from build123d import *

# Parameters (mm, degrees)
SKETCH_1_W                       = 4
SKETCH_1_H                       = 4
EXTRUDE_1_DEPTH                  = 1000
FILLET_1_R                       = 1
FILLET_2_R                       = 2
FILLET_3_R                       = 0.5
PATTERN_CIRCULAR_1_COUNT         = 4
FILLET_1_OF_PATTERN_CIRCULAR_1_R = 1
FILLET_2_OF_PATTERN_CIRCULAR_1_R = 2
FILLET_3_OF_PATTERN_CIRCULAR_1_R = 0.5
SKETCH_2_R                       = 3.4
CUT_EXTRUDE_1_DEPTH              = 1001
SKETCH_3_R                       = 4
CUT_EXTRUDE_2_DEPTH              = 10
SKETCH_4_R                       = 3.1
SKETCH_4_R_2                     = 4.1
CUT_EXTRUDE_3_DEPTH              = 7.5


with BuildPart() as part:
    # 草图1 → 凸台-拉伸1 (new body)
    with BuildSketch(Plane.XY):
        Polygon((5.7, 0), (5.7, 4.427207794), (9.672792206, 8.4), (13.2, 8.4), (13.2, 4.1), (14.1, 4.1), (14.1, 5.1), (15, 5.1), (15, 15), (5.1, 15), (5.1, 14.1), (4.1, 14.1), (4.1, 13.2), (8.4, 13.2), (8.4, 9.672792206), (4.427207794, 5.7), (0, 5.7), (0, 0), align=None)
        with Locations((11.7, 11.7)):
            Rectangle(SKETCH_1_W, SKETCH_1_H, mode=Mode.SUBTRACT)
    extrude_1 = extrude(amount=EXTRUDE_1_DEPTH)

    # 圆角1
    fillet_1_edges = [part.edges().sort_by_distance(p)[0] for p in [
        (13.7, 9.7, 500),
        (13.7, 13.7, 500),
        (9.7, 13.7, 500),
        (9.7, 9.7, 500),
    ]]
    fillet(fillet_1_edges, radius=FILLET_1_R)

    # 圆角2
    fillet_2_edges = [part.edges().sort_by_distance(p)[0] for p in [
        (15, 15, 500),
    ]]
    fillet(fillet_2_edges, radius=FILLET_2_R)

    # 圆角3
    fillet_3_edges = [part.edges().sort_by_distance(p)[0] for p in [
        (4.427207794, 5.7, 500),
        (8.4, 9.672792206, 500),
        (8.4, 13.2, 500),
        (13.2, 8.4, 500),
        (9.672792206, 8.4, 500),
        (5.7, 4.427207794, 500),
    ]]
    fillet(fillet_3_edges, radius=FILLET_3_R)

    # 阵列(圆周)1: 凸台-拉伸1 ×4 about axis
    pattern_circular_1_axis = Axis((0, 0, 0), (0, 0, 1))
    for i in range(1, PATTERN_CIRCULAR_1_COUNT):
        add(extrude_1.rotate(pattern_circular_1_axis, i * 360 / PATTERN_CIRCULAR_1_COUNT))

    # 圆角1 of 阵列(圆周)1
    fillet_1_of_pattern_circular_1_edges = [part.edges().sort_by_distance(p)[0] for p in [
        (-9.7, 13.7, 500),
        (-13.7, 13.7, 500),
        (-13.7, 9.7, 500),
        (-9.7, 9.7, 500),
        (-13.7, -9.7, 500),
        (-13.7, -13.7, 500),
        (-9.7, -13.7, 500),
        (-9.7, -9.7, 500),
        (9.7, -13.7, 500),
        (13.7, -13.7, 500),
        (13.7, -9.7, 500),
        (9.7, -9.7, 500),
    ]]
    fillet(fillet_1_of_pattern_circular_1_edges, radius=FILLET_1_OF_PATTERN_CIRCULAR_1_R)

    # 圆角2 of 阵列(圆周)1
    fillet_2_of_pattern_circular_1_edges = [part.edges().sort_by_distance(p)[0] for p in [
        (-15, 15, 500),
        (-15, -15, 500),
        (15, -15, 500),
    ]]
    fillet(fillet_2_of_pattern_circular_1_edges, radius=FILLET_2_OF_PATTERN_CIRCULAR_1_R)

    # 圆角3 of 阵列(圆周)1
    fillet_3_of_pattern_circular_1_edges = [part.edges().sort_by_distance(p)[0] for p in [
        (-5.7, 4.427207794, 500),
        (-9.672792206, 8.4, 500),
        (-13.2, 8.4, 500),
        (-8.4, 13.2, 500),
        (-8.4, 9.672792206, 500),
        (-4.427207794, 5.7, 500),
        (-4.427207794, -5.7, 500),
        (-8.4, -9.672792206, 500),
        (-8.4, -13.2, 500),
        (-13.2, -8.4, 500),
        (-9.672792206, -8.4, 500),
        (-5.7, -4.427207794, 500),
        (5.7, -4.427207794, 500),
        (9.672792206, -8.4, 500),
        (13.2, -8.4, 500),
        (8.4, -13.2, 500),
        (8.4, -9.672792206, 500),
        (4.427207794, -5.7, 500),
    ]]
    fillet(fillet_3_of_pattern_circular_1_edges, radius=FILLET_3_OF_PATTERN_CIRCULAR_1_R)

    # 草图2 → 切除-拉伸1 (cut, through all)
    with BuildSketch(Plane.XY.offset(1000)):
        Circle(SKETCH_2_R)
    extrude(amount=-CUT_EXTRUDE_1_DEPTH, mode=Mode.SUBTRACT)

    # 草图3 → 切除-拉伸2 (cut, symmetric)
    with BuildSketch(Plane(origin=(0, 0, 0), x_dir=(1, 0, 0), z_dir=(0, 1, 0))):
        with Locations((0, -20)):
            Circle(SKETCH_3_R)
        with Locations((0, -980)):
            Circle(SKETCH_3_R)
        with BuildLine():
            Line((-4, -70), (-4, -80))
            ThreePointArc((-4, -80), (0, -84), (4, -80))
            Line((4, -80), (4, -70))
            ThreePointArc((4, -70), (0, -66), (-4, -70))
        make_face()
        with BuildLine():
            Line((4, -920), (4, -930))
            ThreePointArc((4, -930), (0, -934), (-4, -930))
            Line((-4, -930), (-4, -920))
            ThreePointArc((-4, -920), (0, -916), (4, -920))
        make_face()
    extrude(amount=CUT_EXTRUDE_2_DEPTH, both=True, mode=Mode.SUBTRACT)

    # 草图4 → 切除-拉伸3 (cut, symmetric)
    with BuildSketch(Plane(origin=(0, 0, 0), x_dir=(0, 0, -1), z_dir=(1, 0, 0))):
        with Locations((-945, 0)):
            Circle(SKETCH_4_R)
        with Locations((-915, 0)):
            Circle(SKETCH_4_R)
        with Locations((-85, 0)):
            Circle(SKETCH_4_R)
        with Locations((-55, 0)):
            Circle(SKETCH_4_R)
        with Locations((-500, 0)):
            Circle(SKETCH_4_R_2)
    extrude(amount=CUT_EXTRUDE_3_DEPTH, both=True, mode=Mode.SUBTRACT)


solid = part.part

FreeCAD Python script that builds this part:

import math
import FreeCAD as App
import Part
import Sketcher

V = App.Vector
Q = App.Units.Quantity


def edges_at(feature, points):
    """Names of the edges that pass closest to the given points."""
    edges = feature.Shape.Edges
    near = lambda p: min(range(len(edges)), key=lambda i: edges[i].distToShape(Part.Vertex(*p))[0])
    return sorted({f"Edge{near(p) + 1}" for p in points})


def add_polygon(sketch, points):
    """Adds a closed chain of lines whose ends are joined by coincident constraints."""
    first, n = sketch.GeometryCount, len(points)
    for a, b in zip(points, points[1:] + points[:1]):
        sketch.addGeometry(Part.LineSegment(App.Vector(*a, 0), App.Vector(*b, 0)), False)
    for i in range(n):
        sketch.addConstraint(Sketcher.Constraint("Coincident", first + i, 2, first + (i + 1) % n, 1))

doc = App.newDocument("Part")
body = doc.addObject("PartDesign::Body", "Body")

sketch1 = body.newObject("Sketcher::SketchObject", "Sketch")
sketch1.AttachmentSupport = (doc.getObject("XY_Plane"), [""])
sketch1.MapMode = "FlatFace"
add_polygon(sketch1, [(5.7, 0), (5.7, 4.4), (9.7, 8.4), (13.2, 8.4), (13.2, 4.1), (14.1, 4.1), (14.1, 5.1), (15, 5.1), (15, 15), (5.1, 15), (5.1, 14.1), (4.1, 14.1), (4.1, 13.2), (8.4, 13.2), (8.4, 9.7), (4.4, 5.7), (0, 5.7), (0, 0)])
add_polygon(sketch1, [(13.7, 9.7), (9.7, 9.7), (9.7, 13.7), (13.7, 13.7)])
sketch1.addConstraint([
    Sketcher.Constraint("Vertical", 0),
    Sketcher.Constraint("Horizontal", 2),
    Sketcher.Constraint("Vertical", 3),
    Sketcher.Constraint("Horizontal", 4),
    Sketcher.Constraint("Vertical", 5),
    Sketcher.Constraint("Horizontal", 6),
    Sketcher.Constraint("Vertical", 7),
    Sketcher.Constraint("Horizontal", 8),
    Sketcher.Constraint("Vertical", 9),
    Sketcher.Constraint("Horizontal", 10),
    Sketcher.Constraint("Vertical", 11),
    Sketcher.Constraint("Horizontal", 12),
    Sketcher.Constraint("Vertical", 13),
    Sketcher.Constraint("Horizontal", 15),
    Sketcher.Constraint("Vertical", 16),
    Sketcher.Constraint("Horizontal", 17),
    Sketcher.Constraint("Horizontal", 18),
    Sketcher.Constraint("Vertical", 19),
    Sketcher.Constraint("Horizontal", 20),
    Sketcher.Constraint("Vertical", 21),
    Sketcher.Constraint("Coincident", 16, 2, -1, 1),
    Sketcher.Constraint("Parallel", 1, 14),
    Sketcher.Constraint("Equal", 4, 6),
    Sketcher.Constraint("Equal", 15, 0),
    Sketcher.Constraint("Equal", 12, 3),
    Sketcher.Constraint("Equal", 10, 5),
    Sketcher.Constraint("Equal", 8, 7),
    Sketcher.Constraint("Equal", 6, 9),
    Sketcher.Constraint("Equal", 9, 11),
    Sketcher.Constraint("Equal", 2, 13),
    Sketcher.Constraint("Equal", 17, 16),
    Sketcher.Constraint("Equal", 20, 19),
    Sketcher.Constraint("DistanceX", 10, 2, 10, 1, Q("1 mm")),
    Sketcher.Constraint("DistanceX", 18, 2, 18, 1, Q("4 mm")),
    Sketcher.Constraint("Angle", 1, Q("45 deg")),
    Sketcher.Constraint("DistanceX", 4, 1, 4, 2, Q("0.9 mm")),
    Sketcher.Constraint("DistanceX", 8, 2, 8, 1, Q("9.9 mm")),
    Sketcher.Constraint("DistanceX", 12, 1, 12, 2, Q("4.3 mm")),
    Sketcher.Constraint("DistanceX", 17, 1, 17, 2, Q("5.7 mm")),
    Sketcher.Constraint("DistanceX", -1, 1, 6, 2, Q("15 mm")),
    Sketcher.Constraint("DistanceX", -1, 1, 18, 2, Q("9.7 mm")),
    Sketcher.Constraint("DistanceY", -1, 1, 18, 2, Q("9.7 mm")),
    Sketcher.Constraint("DistanceX", 2, 1, 2, 2, Q("3.527208 mm")),
])
pad1 = body.newObject("PartDesign::Pad", "Pad")
pad1.Profile = sketch1
pad1.Length = 1000
doc.recompute()

fillet = body.newObject("PartDesign::Fillet", "Fillet")
fillet.Base = (pad1, edges_at(pad1, [
    (13.7, 9.7, 500),
    (13.7, 13.7, 500),
    (9.7, 13.7, 500),
    (9.7, 9.7, 500),
]))
fillet.Radius = 1
doc.recompute()

fillet2 = body.newObject("PartDesign::Fillet", "Fillet001")
fillet2.Base = (fillet, edges_at(fillet, [(15, 15, 500)]))
fillet2.Radius = 2
doc.recompute()

fillet3 = body.newObject("PartDesign::Fillet", "Fillet002")
fillet3.Base = (fillet2, edges_at(fillet2, [
    (4.427, 5.7, 500),
    (8.4, 9.673, 500),
    (8.4, 13.2, 500),
    (13.2, 8.4, 500),
    (9.673, 8.4, 500),
    (5.7, 4.427, 500),
]))
fillet3.Radius = 0.5
doc.recompute()

polarpattern = body.newObject("PartDesign::PolarPattern", "PolarPattern")
polarpattern.Originals = [pad1]
polarpattern.Axis = (doc.getObject("Z_Axis"), [""])
polarpattern.Angle = 360
polarpattern.Occurrences = 4
body.Tip = polarpattern
doc.recompute()

fillet4 = body.newObject("PartDesign::Fillet", "Fillet003")
fillet4.Base = (polarpattern, edges_at(polarpattern, [
    (-9.7, 13.7, 500),
    (-13.7, 13.7, 500),
    (-13.7, 9.7, 500),
    (-9.7, 9.7, 500),
    (-13.7, -9.7, 500),
    (-13.7, -13.7, 500),
    (-9.7, -13.7, 500),
    (-9.7, -9.7, 500),
    (9.7, -13.7, 500),
    (13.7, -13.7, 500),
    (13.7, -9.7, 500),
    (9.7, -9.7, 500),
]))
fillet4.Radius = 1
doc.recompute()

fillet5 = body.newObject("PartDesign::Fillet", "Fillet004")
fillet5.Base = (fillet4, edges_at(fillet4, [(-15, 15, 500), (-15, -15, 500), (15, -15, 500)]))
fillet5.Radius = 2
doc.recompute()

fillet6 = body.newObject("PartDesign::Fillet", "Fillet005")
fillet6.Base = (fillet5, edges_at(fillet5, [
    (-5.7, 4.427, 500),
    (-9.673, 8.4, 500),
    (-13.2, 8.4, 500),
    (-8.4, 13.2, 500),
    (-8.4, 9.673, 500),
    (-4.427, 5.7, 500),
    (-4.427, -5.7, 500),
    (-8.4, -9.673, 500),
    (-8.4, -13.2, 500),
    (-13.2, -8.4, 500),
    (-9.673, -8.4, 500),
    (-5.7, -4.427, 500),
    (5.7, -4.427, 500),
    (9.673, -8.4, 500),
    (13.2, -8.4, 500),
    (8.4, -13.2, 500),
    (8.4, -9.673, 500),
    (4.427, -5.7, 500),
]))
fillet6.Radius = 0.5

sketch2 = body.newObject("Sketcher::SketchObject", "Sketch001")
sketch2.AttachmentSupport = (doc.getObject("XY_Plane"), [""])
sketch2.MapMode = "FlatFace"
sketch2.AttachmentOffset = App.Placement(V(0, 0, 1000), App.Rotation())
sketch2.addGeometry(Part.Circle(V(0, 0, 0), V(0, 0, 1), 3.4), False)
sketch2.addConstraint([
    Sketcher.Constraint("Coincident", 0, 3, -1, 1),
    Sketcher.Constraint("Diameter", 0, Q("6.8 mm")),
])
pocket1 = body.newObject("PartDesign::Pocket", "Pocket")
pocket1.Profile = sketch2
pocket1.Type = "ThroughAll"

sketch3 = body.newObject("Sketcher::SketchObject", "Sketch002")
sketch3.AttachmentSupport = (doc.getObject("XZ_Plane"), [""])
sketch3.MapMode = "FlatFace"
sketch3.addGeometry([
    Part.Circle(V(0, 20, 0), V(0, 0, 1), 4),
    Part.Circle(V(0, 980, 0), V(0, 0, 1), 4),
    Part.LineSegment(V(-4, 70, 0), V(-4, 80, 0)),
    Part.ArcOfCircle(Part.Circle(V(0, 80, 0), V(0, 0, 1), 4), math.radians(0), math.radians(180)),
    Part.LineSegment(V(4, 80, 0), V(4, 70, 0)),
    Part.ArcOfCircle(Part.Circle(V(0, 70, 0), V(0, 0, 1), 4), math.radians(180), math.radians(360)),
    Part.LineSegment(V(4, 930, 0), V(4, 920, 0)),
    Part.ArcOfCircle(Part.Circle(V(0, 920, 0), V(0, 0, 1), 4), math.radians(180), math.radians(360)),
    Part.LineSegment(V(-4, 920, 0), V(-4, 930, 0)),
    Part.ArcOfCircle(Part.Circle(V(0, 930, 0), V(0, 0, 1), 4), math.radians(0), math.radians(180)),
], False)
sketch3.addConstraint([
    Sketcher.Constraint("Tangent", 2, 2, 3, 2),
    Sketcher.Constraint("Tangent", 3, 1, 4, 1),
    Sketcher.Constraint("Tangent", 4, 2, 5, 2),
    Sketcher.Constraint("Tangent", 5, 1, 2, 1),
    Sketcher.Constraint("Tangent", 6, 2, 7, 2),
    Sketcher.Constraint("Tangent", 7, 1, 8, 1),
    Sketcher.Constraint("Tangent", 8, 2, 9, 2),
    Sketcher.Constraint("Tangent", 9, 1, 6, 1),
    Sketcher.Constraint("Vertical", 2),
    Sketcher.Constraint("Vertical", 4),
    Sketcher.Constraint("Vertical", 6),
    Sketcher.Constraint("Vertical", 8),
    Sketcher.Constraint("Equal", 0, 1),
    Sketcher.Constraint("Equal", 1, 3),
    Sketcher.Constraint("Equal", 5, 7),
    Sketcher.Constraint("PointOnObject", 0, 3, -2),
    Sketcher.Constraint("PointOnObject", 1, 3, -2),
    Sketcher.Constraint("PointOnObject", 3, 3, -2),
    Sketcher.Constraint("PointOnObject", 7, 3, -2),
    Sketcher.Constraint("Equal", 4, 6),
    Sketcher.Constraint("Diameter", 0, Q("8 mm")),
    Sketcher.Constraint("DistanceY", 2, 1, 2, 2, Q("10 mm")),
    Sketcher.Constraint("DistanceY", -1, 1, 0, 3, Q("20 mm")),
    Sketcher.Constraint("DistanceY", -1, 1, 1, 3, Q("980 mm")),
    Sketcher.Constraint("DistanceY", -1, 1, 3, 3, Q("80 mm")),
    Sketcher.Constraint("DistanceY", -1, 1, 7, 3, Q("920 mm")),
])
pocket2 = body.newObject("PartDesign::Pocket", "Pocket001")
pocket2.Profile = sketch3
pocket2.Length = 20
pocket2.Midplane = True

sketch4 = body.newObject("Sketcher::SketchObject", "Sketch003")
sketch4.AttachmentSupport = (doc.getObject("YZ_Plane"), [""])
sketch4.MapMode = "FlatFace"
sketch4.addGeometry([
    Part.Circle(V(0, 945, 0), V(0, 0, 1), 3.1),
    Part.Circle(V(0, 915, 0), V(0, 0, 1), 3.1),
    Part.Circle(V(0, 85, 0), V(0, 0, 1), 3.1),
    Part.Circle(V(0, 55, 0), V(0, 0, 1), 3.1),
    Part.Circle(V(0, 500, 0), V(0, 0, 1), 4.1),
], False)
sketch4.addConstraint([
    Sketcher.Constraint("Equal", 0, 1),
    Sketcher.Constraint("Equal", 1, 2),
    Sketcher.Constraint("Equal", 2, 3),
    Sketcher.Constraint("PointOnObject", 0, 3, -2),
    Sketcher.Constraint("PointOnObject", 1, 3, -2),
    Sketcher.Constraint("PointOnObject", 2, 3, -2),
    Sketcher.Constraint("PointOnObject", 3, 3, -2),
    Sketcher.Constraint("PointOnObject", 4, 3, -2),
    Sketcher.Constraint("Diameter", 0, Q("6.2 mm")),
    Sketcher.Constraint("Diameter", 4, Q("8.2 mm")),
    Sketcher.Constraint("DistanceY", -1, 1, 0, 3, Q("945 mm")),
    Sketcher.Constraint("DistanceY", -1, 1, 1, 3, Q("915 mm")),
    Sketcher.Constraint("DistanceY", -1, 1, 2, 3, Q("85 mm")),
    Sketcher.Constraint("DistanceY", -1, 1, 3, 3, Q("55 mm")),
    Sketcher.Constraint("DistanceY", -1, 1, 4, 3, Q("500 mm")),
])
pocket3 = body.newObject("PartDesign::Pocket", "Pocket002")
pocket3.Profile = sketch4
pocket3.Length = 15
pocket3.Midplane = True

doc.recompute()
